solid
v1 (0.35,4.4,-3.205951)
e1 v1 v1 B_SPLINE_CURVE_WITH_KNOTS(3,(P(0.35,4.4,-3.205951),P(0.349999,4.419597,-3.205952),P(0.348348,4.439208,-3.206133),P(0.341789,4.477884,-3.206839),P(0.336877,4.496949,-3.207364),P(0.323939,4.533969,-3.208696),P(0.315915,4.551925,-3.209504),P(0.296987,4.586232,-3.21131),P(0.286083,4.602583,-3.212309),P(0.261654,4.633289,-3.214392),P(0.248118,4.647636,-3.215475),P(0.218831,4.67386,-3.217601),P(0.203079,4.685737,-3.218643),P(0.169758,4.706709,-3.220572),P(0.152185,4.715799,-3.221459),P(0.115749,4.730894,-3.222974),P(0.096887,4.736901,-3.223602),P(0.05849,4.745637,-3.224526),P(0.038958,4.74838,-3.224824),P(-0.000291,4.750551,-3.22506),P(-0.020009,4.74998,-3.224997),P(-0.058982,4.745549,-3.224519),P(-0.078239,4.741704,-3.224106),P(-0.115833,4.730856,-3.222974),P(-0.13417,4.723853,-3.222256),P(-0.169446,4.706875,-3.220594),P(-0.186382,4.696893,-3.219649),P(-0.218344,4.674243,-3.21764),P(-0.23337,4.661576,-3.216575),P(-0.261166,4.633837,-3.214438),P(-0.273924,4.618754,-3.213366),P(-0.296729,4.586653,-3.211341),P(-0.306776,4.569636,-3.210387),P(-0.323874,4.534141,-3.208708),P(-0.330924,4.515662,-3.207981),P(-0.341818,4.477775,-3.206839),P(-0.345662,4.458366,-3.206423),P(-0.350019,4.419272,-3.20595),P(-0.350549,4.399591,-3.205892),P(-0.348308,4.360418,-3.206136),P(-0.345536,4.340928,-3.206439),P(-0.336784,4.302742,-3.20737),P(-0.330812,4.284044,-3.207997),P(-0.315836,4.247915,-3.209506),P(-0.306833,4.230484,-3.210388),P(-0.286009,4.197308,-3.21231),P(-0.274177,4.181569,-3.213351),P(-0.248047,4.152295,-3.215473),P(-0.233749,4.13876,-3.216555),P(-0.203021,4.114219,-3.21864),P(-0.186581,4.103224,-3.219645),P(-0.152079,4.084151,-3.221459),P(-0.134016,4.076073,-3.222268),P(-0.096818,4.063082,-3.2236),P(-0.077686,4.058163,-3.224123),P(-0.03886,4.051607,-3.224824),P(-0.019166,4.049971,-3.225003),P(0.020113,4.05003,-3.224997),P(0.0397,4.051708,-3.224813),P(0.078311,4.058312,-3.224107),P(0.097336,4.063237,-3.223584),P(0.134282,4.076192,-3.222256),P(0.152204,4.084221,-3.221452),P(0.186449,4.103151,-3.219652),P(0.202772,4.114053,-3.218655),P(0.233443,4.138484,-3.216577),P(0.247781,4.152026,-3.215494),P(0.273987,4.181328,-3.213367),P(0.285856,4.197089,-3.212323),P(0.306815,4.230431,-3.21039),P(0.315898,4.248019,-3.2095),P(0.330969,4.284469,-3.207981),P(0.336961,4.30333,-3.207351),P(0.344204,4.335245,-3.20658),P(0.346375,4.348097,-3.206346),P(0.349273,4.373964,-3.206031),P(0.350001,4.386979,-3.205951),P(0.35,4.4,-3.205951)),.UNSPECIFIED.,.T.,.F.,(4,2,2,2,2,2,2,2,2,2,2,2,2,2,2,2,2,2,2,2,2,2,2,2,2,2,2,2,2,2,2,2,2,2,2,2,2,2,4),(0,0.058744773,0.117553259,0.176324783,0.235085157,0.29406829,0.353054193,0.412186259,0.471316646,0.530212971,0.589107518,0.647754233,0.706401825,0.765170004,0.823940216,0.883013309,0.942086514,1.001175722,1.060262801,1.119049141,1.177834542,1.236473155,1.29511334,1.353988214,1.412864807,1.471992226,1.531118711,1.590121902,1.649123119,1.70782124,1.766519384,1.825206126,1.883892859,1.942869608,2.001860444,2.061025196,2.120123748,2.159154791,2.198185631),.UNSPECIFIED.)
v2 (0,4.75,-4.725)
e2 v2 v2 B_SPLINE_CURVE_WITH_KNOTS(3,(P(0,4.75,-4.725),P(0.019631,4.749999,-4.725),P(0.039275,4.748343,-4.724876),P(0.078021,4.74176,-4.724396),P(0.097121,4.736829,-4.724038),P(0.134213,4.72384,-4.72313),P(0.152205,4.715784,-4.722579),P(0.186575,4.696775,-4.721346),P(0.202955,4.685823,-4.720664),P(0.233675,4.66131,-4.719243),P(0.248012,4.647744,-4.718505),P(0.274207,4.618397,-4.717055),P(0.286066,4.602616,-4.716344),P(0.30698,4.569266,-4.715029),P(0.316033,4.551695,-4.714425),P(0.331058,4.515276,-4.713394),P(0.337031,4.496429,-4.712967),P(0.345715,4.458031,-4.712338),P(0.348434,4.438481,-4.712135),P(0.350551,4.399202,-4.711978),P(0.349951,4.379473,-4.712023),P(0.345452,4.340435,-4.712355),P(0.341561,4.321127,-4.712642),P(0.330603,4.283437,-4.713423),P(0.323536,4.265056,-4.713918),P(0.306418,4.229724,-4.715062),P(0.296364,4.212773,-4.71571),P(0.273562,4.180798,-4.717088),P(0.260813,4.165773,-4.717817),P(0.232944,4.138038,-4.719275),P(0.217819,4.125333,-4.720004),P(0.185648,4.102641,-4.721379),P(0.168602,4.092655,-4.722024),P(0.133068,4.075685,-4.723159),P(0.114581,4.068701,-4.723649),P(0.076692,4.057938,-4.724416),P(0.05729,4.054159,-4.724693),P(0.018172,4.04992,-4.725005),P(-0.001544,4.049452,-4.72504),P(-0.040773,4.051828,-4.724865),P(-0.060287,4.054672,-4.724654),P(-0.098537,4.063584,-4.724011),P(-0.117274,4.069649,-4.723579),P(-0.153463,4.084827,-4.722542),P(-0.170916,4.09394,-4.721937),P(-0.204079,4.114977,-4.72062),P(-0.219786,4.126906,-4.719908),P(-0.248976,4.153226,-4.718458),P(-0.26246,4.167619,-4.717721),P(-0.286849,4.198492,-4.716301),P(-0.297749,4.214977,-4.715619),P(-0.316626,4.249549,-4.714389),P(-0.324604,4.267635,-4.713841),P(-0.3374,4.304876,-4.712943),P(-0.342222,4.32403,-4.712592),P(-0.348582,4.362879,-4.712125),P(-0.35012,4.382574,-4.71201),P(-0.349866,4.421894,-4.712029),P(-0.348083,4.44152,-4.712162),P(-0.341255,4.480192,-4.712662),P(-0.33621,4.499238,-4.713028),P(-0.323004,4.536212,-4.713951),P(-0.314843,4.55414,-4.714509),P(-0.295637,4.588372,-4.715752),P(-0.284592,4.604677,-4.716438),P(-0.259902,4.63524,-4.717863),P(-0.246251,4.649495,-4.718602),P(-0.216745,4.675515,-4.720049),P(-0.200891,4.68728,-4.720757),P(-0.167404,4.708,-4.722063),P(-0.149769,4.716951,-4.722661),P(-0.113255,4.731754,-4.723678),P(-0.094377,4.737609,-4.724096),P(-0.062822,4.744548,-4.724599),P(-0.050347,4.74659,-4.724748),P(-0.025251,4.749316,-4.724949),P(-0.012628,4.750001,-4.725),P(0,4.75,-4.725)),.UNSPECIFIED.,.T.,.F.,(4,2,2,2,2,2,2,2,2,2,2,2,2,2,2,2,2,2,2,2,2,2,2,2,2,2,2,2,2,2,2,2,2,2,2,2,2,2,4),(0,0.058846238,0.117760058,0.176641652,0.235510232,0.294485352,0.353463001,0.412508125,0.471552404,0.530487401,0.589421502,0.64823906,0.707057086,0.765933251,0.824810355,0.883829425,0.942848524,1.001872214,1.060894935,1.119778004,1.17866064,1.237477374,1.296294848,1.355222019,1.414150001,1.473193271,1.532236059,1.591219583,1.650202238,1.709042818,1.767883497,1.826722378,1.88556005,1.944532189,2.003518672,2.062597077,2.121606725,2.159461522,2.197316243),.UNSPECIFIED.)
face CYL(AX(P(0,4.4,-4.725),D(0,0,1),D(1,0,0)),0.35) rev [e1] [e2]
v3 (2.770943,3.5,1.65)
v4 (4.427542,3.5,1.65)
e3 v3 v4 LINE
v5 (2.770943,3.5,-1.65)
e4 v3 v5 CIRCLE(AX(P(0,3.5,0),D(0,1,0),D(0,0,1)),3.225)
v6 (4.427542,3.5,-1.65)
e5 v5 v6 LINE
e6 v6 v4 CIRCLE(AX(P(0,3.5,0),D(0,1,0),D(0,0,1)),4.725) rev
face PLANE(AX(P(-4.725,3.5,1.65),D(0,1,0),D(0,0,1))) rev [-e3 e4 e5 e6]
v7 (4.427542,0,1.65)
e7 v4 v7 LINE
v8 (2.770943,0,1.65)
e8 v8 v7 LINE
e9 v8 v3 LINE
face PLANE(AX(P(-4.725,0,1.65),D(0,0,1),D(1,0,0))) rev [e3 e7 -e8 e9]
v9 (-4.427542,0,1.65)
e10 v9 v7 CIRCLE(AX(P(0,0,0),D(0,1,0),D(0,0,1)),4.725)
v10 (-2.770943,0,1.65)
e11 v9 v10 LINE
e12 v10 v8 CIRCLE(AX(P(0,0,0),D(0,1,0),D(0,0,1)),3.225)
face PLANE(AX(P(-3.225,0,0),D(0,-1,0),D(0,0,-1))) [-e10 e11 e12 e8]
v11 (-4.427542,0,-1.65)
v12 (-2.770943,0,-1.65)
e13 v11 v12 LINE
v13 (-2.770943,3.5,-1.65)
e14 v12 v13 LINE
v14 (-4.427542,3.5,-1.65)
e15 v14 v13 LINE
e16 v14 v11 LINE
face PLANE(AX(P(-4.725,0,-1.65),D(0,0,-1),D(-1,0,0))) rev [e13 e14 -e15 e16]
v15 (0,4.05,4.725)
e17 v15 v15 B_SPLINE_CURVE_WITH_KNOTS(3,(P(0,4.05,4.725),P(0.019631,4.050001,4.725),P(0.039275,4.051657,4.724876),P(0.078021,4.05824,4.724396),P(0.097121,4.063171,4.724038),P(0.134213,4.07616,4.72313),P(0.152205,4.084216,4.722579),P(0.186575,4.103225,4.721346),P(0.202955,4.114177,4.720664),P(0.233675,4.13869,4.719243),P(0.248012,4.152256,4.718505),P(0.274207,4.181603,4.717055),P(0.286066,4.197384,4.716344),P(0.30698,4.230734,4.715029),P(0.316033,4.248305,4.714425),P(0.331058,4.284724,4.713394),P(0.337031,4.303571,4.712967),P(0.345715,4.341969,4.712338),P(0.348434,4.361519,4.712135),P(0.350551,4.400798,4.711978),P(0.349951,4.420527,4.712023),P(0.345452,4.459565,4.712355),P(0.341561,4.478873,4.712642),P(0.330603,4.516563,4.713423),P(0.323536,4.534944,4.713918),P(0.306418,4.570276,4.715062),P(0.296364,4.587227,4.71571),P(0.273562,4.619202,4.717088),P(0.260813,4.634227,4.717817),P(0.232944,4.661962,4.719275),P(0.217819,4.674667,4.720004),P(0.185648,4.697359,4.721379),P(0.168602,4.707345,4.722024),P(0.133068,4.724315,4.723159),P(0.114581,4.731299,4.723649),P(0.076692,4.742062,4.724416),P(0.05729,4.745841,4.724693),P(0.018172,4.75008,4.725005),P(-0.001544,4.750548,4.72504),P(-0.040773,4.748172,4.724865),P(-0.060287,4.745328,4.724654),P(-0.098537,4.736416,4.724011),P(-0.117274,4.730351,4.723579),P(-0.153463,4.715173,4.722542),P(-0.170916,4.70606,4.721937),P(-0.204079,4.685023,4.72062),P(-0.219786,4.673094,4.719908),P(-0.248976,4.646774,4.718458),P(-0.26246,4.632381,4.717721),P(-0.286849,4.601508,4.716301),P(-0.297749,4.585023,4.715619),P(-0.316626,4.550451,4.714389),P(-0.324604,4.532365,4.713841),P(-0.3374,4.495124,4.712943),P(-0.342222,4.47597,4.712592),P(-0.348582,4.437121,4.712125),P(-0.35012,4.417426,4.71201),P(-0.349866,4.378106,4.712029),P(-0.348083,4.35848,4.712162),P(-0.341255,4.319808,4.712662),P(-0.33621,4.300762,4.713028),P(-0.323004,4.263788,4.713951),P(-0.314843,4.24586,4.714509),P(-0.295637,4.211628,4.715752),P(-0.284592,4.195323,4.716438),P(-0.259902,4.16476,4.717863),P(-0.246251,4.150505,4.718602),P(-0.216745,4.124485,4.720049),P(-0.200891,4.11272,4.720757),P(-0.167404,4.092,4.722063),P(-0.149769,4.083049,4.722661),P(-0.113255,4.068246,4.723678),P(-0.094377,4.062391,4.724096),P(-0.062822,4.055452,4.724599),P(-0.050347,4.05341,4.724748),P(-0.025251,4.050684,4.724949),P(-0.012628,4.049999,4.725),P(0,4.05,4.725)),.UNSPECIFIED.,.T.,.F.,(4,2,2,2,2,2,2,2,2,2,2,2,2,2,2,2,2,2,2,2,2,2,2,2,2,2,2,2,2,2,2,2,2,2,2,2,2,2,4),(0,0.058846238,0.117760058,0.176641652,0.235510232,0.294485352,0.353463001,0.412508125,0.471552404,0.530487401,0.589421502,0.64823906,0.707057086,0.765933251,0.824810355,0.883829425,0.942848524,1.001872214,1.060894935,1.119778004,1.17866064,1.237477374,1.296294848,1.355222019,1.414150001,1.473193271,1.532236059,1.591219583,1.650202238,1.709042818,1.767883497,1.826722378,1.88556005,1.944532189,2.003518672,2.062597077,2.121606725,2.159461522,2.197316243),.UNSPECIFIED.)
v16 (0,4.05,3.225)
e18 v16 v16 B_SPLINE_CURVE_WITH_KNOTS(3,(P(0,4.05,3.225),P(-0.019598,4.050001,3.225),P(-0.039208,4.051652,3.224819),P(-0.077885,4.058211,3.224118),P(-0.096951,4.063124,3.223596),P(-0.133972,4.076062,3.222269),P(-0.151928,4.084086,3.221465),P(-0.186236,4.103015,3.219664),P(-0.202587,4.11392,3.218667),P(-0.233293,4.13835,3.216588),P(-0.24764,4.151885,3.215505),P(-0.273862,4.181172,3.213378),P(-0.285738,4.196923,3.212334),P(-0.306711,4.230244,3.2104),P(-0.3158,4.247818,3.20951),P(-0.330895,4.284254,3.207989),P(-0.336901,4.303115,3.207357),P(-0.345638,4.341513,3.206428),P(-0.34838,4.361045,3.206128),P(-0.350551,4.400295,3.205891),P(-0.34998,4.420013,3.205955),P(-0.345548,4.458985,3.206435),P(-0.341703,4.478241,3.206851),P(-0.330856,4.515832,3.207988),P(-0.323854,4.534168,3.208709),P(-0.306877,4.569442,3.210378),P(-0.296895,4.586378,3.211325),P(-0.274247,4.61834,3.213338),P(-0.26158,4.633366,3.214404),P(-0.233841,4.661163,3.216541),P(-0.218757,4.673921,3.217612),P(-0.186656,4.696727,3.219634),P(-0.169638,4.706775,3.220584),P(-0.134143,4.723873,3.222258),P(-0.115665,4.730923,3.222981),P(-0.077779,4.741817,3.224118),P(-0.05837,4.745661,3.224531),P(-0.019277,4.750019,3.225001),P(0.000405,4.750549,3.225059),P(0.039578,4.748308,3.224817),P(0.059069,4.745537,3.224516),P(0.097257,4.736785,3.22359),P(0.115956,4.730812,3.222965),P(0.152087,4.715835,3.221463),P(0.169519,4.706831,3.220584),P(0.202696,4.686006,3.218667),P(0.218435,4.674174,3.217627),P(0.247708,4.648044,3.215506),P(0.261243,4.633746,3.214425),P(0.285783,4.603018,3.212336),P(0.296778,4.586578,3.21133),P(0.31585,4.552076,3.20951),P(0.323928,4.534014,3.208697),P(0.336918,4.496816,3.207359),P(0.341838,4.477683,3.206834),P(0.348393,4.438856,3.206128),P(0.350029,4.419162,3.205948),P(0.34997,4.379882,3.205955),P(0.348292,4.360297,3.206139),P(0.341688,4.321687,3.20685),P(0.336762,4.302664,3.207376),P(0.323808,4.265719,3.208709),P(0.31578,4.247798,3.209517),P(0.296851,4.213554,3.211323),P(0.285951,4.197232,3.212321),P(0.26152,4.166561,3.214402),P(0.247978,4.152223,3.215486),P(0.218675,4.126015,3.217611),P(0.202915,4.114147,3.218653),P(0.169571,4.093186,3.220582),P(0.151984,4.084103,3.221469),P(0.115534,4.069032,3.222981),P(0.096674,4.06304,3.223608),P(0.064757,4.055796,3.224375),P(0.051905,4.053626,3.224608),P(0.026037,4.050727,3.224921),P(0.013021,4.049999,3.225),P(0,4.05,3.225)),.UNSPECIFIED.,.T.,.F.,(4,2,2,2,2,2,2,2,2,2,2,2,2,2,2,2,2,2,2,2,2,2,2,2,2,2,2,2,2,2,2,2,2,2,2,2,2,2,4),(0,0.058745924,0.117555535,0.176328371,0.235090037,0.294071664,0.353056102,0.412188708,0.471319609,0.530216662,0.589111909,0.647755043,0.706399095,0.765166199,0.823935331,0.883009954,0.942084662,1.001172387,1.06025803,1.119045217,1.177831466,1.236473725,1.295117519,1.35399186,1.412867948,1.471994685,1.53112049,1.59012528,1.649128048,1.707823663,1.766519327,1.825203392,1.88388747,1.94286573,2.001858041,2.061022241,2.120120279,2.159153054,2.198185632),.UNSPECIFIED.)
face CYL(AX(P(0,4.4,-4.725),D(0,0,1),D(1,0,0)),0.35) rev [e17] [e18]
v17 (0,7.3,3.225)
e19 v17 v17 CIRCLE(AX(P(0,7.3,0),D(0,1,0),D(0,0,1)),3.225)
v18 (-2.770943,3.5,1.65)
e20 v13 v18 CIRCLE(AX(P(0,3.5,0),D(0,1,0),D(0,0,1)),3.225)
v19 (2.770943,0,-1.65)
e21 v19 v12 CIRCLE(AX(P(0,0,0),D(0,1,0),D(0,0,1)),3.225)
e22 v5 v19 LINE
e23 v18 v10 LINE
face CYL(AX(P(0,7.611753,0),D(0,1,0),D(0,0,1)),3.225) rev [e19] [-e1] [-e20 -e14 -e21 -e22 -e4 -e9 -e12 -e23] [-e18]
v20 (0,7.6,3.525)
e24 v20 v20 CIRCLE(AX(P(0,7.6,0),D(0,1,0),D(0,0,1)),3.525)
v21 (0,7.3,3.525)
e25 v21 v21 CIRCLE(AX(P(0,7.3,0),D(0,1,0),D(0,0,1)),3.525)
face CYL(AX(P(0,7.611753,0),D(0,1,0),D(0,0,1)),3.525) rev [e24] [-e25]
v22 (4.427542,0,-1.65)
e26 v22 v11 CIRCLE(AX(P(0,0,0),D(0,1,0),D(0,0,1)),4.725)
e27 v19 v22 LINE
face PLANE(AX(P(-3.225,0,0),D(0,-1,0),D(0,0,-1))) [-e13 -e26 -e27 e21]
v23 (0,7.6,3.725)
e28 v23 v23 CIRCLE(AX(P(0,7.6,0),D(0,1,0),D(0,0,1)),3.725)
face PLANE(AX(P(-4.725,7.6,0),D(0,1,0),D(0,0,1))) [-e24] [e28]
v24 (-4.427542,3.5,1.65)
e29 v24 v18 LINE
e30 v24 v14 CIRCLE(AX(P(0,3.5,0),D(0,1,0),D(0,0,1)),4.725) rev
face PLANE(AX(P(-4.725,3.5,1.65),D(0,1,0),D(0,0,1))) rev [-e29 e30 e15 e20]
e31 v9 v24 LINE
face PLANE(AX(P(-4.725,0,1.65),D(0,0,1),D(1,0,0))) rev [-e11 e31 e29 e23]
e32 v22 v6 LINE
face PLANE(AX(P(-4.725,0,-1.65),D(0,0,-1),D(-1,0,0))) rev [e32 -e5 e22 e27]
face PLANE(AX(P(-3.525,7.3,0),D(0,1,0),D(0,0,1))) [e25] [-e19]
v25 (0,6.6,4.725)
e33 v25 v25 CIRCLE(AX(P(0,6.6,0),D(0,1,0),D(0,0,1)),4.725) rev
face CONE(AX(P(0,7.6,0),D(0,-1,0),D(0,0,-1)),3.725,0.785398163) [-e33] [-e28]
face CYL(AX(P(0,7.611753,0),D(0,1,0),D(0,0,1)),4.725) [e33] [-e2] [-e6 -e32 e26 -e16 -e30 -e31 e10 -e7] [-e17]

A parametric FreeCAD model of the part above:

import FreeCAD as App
import Part
import Sketcher
from FreeCAD import Vector
Q = App.Units.Quantity


def edges_at(feature, points):
    """Names of the edges that pass closest to the given points."""
    edges = feature.Shape.Edges
    near = lambda p: min(range(len(edges)), key=lambda i: edges[i].distToShape(Part.Vertex(*p))[0])
    return sorted({f"Edge{near(p) + 1}" for p in points})

doc = App.newDocument("Part")
body = doc.addObject("PartDesign::Body", "Body")

sketch1 = body.newObject("Sketcher::SketchObject", "Sketch")
sketch1.AttachmentSupport = (doc.getObject("XY_Plane"), [""])
sketch1.MapMode = "FlatFace"
sketch1.addGeometry([
    Part.LineSegment(Vector(-4.72, 7.6, 0), Vector(-4.72, 0, 0)),
    Part.LineSegment(Vector(-4.72, 0, 0), Vector(-3.23, 0, 0)),
    Part.LineSegment(Vector(-3.23, 0, 0), Vector(-3.23, 7.3, 0)),
    Part.LineSegment(Vector(-3.23, 7.3, 0), Vector(-3.52, 7.3, 0)),
    Part.LineSegment(Vector(-3.52, 7.3, 0), Vector(-3.52, 7.6, 0)),
    Part.LineSegment(Vector(-3.52, 7.6, 0), Vector(-4.72, 7.6, 0)),
], False)
sketch1.addConstraint([
    Sketcher.Constraint("Coincident", 0, 2, 1, 1),
    Sketcher.Constraint("Coincident", 1, 2, 2, 1),
    Sketcher.Constraint("Coincident", 2, 2, 3, 1),
    Sketcher.Constraint("Coincident", 3, 2, 4, 1),
    Sketcher.Constraint("Coincident", 4, 2, 5, 1),
    Sketcher.Constraint("Coincident", 5, 2, 0, 1),
    Sketcher.Constraint("Vertical", 0),
    Sketcher.Constraint("Horizontal", 1),
    Sketcher.Constraint("Vertical", 2),
    Sketcher.Constraint("Horizontal", 3),
    Sketcher.Constraint("Vertical", 4),
    Sketcher.Constraint("Horizontal", 5),
    Sketcher.Constraint("PointOnObject", 0, 2, -1),
    Sketcher.Constraint("Equal", 3, 4),
    Sketcher.Constraint("DistanceX", 1, 1, 1, 2, Q("1.5 mm")),
    Sketcher.Constraint("DistanceX", 3, 2, 3, 1, Q("0.3 mm")),
    Sketcher.Constraint("DistanceY", 0, 2, 0, 1, Q("7.6 mm")),
    Sketcher.Constraint("DistanceX", 0, 2, -1, 1, Q("4.725 mm")),
])
revolution = body.newObject("PartDesign::Revolution", "Revolution")
revolution.Profile = sketch1
revolution.ReferenceAxis = (sketch1, ["V_Axis"])
revolution.Angle = 360
doc.recompute()

chamfer = body.newObject("PartDesign::Chamfer", "Chamfer")
chamfer.Base = (revolution, edges_at(revolution, [(4.725, 7.6, 0)]))
chamfer.Size = 1

sketch2 = body.newObject("Sketcher::SketchObject", "Sketch001")
sketch2.AttachmentSupport = (doc.getObject("YZ_Plane"), [""])
sketch2.MapMode = "FlatFace"
sketch2.addGeometry([
    Part.LineSegment(Vector(3.5, 1.6, 0), Vector(0, 1.6, 0)),
    Part.LineSegment(Vector(0, 1.6, 0), Vector(0, -1.6, 0)),
    Part.LineSegment(Vector(0, -1.6, 0), Vector(3.5, -1.6, 0)),
    Part.LineSegment(Vector(3.5, -1.6, 0), Vector(3.5, 1.6, 0)),
], False)
sketch2.addConstraint([
    Sketcher.Constraint("Coincident", 0, 2, 1, 1),
    Sketcher.Constraint("Coincident", 1, 2, 2, 1),
    Sketcher.Constraint("Coincident", 2, 2, 3, 1),
    Sketcher.Constraint("Coincident", 3, 2, 0, 1),
    Sketcher.Constraint("Horizontal", 0),
    Sketcher.Constraint("Vertical", 1),
    Sketcher.Constraint("Horizontal", 2),
    Sketcher.Constraint("Vertical", 3),
    Sketcher.Constraint("Symmetric", 0, 2, 1, 2, -1, 1),
    Sketcher.Constraint("DistanceX", 0, 2, 0, 1, Q("3.5 mm")),
    Sketcher.Constraint("DistanceY", 1, 2, 1, 1, Q("3.3 mm")),
])
pocket1 = body.newObject("PartDesign::Pocket", "Pocket")
pocket1.Profile = sketch2
pocket1.Type = "ThroughAll"
pocket1.Midplane = True

sketch3 = body.newObject("Sketcher::SketchObject", "Sketch002")
sketch3.AttachmentSupport = (doc.getObject("XY_Plane"), [""])
sketch3.MapMode = "FlatFace"
sketch3.addGeometry(Part.Circle(Vector(0, 4.4, 0), Vector(0, 0, 1), 0.35), False)
sketch3.addConstraint([
    Sketcher.Constraint("PointOnObject", 0, 3, -2),
    Sketcher.Constraint("Diameter", 0, Q("0.7 mm")),
    Sketcher.Constraint("DistanceY", -1, 1, 0, 3, Q("4.4 mm")),
])
pocket2 = body.newObject("PartDesign::Pocket", "Pocket001")
pocket2.Profile = sketch3
pocket2.Type = "ThroughAll"
pocket2.Midplane = True

doc.recompute()
